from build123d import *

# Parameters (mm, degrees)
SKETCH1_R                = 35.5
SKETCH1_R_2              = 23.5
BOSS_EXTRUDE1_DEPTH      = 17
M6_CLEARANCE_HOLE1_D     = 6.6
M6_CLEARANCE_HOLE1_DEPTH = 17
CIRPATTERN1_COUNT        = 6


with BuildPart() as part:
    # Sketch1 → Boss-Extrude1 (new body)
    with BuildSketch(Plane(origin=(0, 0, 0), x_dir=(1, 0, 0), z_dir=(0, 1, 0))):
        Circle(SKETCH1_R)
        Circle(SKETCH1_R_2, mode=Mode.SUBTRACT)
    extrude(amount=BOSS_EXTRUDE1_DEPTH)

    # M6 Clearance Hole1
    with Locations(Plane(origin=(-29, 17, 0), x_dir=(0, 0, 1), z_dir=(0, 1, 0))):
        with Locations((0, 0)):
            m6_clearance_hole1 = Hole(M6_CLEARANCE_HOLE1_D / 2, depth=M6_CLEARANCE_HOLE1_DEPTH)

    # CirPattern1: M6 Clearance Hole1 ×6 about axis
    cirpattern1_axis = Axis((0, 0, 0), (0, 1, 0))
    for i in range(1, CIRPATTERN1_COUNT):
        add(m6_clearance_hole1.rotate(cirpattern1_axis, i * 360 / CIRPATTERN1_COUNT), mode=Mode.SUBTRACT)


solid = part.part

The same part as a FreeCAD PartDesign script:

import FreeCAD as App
import Part
import Sketcher
Q = App.Units.Quantity

doc = App.newDocument("Part")
body = doc.addObject("PartDesign::Body", "Body")

# Sketch on XZ plane
sketch1 = doc.addObject("Sketcher::SketchObject", "Sketch")
body.addObject(sketch1)
sketch1.AttachmentSupport = (doc.XZ_Plane, [""])
sketch1.MapMode = "FlatFace"
sketch1.addGeometry([
    Part.Circle(App.Vector(0, 0, 0), App.Vector(0, 0, 1), 36),
    Part.Circle(App.Vector(0, 0, 0), App.Vector(0, 0, 1), 24),
], False)
sketch1.addConstraint([
    Sketcher.Constraint("Coincident", 0, 3, -1, 1),
    Sketcher.Constraint("Coincident", 1, 3, -1, 1),
    Sketcher.Constraint("Diameter", 0, Q("71 mm")),
    Sketcher.Constraint("Diameter", 1, Q("47 mm")),
])
pad1 = doc.addObject("PartDesign::Pad", "Pad")
body.addObject(pad1)
pad1.Profile = sketch1
pad1.Length = 17
pad1.Reversed = True

# Sketch on XZ plane
sketch2 = doc.addObject("Sketcher::SketchObject", "Sketch001")
body.addObject(sketch2)
sketch2.AttachmentSupport = (doc.XZ_Plane, [""])
sketch2.MapMode = "FlatFace"
sketch2.AttachmentOffset = App.Placement(App.Vector(0, 0, -17), App.Rotation())
sketch2.addGeometry(Part.Circle(App.Vector(-29, 0, 0), App.Vector(0, 0, 1), 3.3), False)
sketch2.addConstraint([
    Sketcher.Constraint("PointOnObject", 0, 3, -1),
    Sketcher.Constraint("Diameter", 0, Q("6.6 mm")),
    Sketcher.Constraint("DistanceX", 0, 3, -1, 1, Q("29 mm")),
])
doc.recompute()
hole = doc.addObject("PartDesign::Hole", "Hole")
body.addObject(hole)
hole.Profile = sketch2
hole.ThreadType = "None"
hole.Diameter = 6.6
hole.DepthType = "Dimension"
hole.Depth = 17
hole.DrillPoint = "Flat"
hole.Reversed = True
doc.recompute()

polarpattern = doc.addObject("PartDesign::PolarPattern", "PolarPattern")
body.addObject(polarpattern)
polarpattern.Originals = [hole]
polarpattern.Axis = (doc.Y_Axis, [""])
polarpattern.Angle = 360
polarpattern.Occurrences = 6
body.Tip = polarpattern

doc.recompute()
